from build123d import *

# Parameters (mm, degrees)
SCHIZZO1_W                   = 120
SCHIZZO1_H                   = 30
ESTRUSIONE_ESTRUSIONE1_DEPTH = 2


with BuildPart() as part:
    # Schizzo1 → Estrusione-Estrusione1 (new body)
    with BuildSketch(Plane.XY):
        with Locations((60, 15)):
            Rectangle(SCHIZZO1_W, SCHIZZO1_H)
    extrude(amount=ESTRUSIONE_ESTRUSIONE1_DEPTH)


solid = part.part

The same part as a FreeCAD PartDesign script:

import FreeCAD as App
import Part
import Sketcher
from FreeCAD import Vector


def add_polygon(sketch, points):
    """Adds a closed chain of lines whose ends are joined by coincident constraints."""
    first, n = sketch.GeometryCount, len(points)
    for a, b in zip(points, points[1:] + points[:1]):
        sketch.addGeometry(Part.LineSegment(App.Vector(*a, 0), App.Vector(*b, 0)), False)
    for i in range(n):
        sketch.addConstraint(Sketcher.Constraint("Coincident", first + i, 2, first + (i + 1) % n, 1))

doc = App.newDocument("Part")
body = doc.addObject("PartDesign::Body", "Body")

sketch1 = body.newObject("Sketcher::SketchObject", "Sketch")
sketch1.AttachmentSupport = (doc.getObject("XY_Plane"), [""])
sketch1.MapMode = "FlatFace"
add_polygon(sketch1, [(0, 30), (0, 0), (120, 0), (120, 30)])
sketch1.addConstraint([
    Sketcher.Constraint("Vertical", 0),
    Sketcher.Constraint("Horizontal", 1),
    Sketcher.Constraint("Vertical", 2),
    Sketcher.Constraint("Horizontal", 3),
    Sketcher.Constraint("Coincident", 0, 2, -1, 1),
    Sketcher.Constraint("DistanceX", 1, 1, 1, 2, 120.0),
    Sketcher.Constraint("DistanceY", 0, 2, 0, 1, 30.0),
])
pad1 = body.newObject("PartDesign::Pad", "Pad")
pad1.Profile = sketch1
pad1.Length = 2

doc.recompute()
